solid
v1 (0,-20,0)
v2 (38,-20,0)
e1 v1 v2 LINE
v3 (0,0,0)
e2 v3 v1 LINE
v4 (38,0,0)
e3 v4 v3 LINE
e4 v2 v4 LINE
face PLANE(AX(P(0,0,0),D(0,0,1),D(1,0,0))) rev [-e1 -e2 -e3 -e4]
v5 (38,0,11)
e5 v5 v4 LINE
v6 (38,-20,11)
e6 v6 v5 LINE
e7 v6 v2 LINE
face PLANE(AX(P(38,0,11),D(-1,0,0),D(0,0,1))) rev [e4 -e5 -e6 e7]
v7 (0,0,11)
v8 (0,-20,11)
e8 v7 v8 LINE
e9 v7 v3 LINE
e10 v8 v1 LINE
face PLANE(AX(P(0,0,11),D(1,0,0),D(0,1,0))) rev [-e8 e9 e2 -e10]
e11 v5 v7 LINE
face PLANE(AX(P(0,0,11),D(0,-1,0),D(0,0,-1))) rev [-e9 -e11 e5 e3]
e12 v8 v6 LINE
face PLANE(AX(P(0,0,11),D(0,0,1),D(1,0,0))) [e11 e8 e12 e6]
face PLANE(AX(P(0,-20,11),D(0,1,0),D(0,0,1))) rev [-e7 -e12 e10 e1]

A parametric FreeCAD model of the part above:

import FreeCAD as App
import Part
import Sketcher
from FreeCAD import Vector

doc = App.newDocument("Part")
params = doc.addObject("Spreadsheet::Sheet", "Params")
for row, (alias, value) in enumerate([
    ("sketch1_width", "38 mm"),
    ("sketch1_height", "20 mm"),
    ("pad1_length", "11 mm"),
], start=1):
    params.set(f"A{row}", alias)
    params.set(f"B{row}", "=" + value)
    params.setAlias(f"B{row}", alias)

body = doc.addObject("PartDesign::Body", "Body")

sketch1 = body.newObject("Sketcher::SketchObject", "Sketch")
sketch1.AttachmentSupport = (doc.getObject("XY_Plane"), [""])
sketch1.MapMode = "FlatFace"
sketch1.addGeometry([
    Part.LineSegment(Vector(0, 0, 0), Vector(0, -20, 0)),
    Part.LineSegment(Vector(0, -20, 0), Vector(38, -20, 0)),
    Part.LineSegment(Vector(38, -20, 0), Vector(38, 0, 0)),
    Part.LineSegment(Vector(38, 0, 0), Vector(0, 0, 0)),
], False)
sketch1.addConstraint([
    Sketcher.Constraint("Coincident", 0, 2, 1, 1),
    Sketcher.Constraint("Coincident", 1, 2, 2, 1),
    Sketcher.Constraint("Coincident", 2, 2, 3, 1),
    Sketcher.Constraint("Coincident", 3, 2, 0, 1),
    Sketcher.Constraint("Vertical", 0),
    Sketcher.Constraint("Horizontal", 1),
    Sketcher.Constraint("Vertical", 2),
    Sketcher.Constraint("Horizontal", 3),
    Sketcher.Constraint("Coincident", 3, 2, -1, 1),
    Sketcher.Constraint("DistanceX", 1, 1, 1, 2, 38.0),
    Sketcher.Constraint("DistanceY", 0, 2, 0, 1, 20.0),
])
sketch1.setExpression("Constraints[9]", "Params.sketch1_width")
sketch1.setExpression("Constraints[10]", "Params.sketch1_height")
pad1 = body.newObject("PartDesign::Pad", "Pad")
pad1.Profile = sketch1
pad1.setExpression("Length", "Params.pad1_length")

doc.recompute()
